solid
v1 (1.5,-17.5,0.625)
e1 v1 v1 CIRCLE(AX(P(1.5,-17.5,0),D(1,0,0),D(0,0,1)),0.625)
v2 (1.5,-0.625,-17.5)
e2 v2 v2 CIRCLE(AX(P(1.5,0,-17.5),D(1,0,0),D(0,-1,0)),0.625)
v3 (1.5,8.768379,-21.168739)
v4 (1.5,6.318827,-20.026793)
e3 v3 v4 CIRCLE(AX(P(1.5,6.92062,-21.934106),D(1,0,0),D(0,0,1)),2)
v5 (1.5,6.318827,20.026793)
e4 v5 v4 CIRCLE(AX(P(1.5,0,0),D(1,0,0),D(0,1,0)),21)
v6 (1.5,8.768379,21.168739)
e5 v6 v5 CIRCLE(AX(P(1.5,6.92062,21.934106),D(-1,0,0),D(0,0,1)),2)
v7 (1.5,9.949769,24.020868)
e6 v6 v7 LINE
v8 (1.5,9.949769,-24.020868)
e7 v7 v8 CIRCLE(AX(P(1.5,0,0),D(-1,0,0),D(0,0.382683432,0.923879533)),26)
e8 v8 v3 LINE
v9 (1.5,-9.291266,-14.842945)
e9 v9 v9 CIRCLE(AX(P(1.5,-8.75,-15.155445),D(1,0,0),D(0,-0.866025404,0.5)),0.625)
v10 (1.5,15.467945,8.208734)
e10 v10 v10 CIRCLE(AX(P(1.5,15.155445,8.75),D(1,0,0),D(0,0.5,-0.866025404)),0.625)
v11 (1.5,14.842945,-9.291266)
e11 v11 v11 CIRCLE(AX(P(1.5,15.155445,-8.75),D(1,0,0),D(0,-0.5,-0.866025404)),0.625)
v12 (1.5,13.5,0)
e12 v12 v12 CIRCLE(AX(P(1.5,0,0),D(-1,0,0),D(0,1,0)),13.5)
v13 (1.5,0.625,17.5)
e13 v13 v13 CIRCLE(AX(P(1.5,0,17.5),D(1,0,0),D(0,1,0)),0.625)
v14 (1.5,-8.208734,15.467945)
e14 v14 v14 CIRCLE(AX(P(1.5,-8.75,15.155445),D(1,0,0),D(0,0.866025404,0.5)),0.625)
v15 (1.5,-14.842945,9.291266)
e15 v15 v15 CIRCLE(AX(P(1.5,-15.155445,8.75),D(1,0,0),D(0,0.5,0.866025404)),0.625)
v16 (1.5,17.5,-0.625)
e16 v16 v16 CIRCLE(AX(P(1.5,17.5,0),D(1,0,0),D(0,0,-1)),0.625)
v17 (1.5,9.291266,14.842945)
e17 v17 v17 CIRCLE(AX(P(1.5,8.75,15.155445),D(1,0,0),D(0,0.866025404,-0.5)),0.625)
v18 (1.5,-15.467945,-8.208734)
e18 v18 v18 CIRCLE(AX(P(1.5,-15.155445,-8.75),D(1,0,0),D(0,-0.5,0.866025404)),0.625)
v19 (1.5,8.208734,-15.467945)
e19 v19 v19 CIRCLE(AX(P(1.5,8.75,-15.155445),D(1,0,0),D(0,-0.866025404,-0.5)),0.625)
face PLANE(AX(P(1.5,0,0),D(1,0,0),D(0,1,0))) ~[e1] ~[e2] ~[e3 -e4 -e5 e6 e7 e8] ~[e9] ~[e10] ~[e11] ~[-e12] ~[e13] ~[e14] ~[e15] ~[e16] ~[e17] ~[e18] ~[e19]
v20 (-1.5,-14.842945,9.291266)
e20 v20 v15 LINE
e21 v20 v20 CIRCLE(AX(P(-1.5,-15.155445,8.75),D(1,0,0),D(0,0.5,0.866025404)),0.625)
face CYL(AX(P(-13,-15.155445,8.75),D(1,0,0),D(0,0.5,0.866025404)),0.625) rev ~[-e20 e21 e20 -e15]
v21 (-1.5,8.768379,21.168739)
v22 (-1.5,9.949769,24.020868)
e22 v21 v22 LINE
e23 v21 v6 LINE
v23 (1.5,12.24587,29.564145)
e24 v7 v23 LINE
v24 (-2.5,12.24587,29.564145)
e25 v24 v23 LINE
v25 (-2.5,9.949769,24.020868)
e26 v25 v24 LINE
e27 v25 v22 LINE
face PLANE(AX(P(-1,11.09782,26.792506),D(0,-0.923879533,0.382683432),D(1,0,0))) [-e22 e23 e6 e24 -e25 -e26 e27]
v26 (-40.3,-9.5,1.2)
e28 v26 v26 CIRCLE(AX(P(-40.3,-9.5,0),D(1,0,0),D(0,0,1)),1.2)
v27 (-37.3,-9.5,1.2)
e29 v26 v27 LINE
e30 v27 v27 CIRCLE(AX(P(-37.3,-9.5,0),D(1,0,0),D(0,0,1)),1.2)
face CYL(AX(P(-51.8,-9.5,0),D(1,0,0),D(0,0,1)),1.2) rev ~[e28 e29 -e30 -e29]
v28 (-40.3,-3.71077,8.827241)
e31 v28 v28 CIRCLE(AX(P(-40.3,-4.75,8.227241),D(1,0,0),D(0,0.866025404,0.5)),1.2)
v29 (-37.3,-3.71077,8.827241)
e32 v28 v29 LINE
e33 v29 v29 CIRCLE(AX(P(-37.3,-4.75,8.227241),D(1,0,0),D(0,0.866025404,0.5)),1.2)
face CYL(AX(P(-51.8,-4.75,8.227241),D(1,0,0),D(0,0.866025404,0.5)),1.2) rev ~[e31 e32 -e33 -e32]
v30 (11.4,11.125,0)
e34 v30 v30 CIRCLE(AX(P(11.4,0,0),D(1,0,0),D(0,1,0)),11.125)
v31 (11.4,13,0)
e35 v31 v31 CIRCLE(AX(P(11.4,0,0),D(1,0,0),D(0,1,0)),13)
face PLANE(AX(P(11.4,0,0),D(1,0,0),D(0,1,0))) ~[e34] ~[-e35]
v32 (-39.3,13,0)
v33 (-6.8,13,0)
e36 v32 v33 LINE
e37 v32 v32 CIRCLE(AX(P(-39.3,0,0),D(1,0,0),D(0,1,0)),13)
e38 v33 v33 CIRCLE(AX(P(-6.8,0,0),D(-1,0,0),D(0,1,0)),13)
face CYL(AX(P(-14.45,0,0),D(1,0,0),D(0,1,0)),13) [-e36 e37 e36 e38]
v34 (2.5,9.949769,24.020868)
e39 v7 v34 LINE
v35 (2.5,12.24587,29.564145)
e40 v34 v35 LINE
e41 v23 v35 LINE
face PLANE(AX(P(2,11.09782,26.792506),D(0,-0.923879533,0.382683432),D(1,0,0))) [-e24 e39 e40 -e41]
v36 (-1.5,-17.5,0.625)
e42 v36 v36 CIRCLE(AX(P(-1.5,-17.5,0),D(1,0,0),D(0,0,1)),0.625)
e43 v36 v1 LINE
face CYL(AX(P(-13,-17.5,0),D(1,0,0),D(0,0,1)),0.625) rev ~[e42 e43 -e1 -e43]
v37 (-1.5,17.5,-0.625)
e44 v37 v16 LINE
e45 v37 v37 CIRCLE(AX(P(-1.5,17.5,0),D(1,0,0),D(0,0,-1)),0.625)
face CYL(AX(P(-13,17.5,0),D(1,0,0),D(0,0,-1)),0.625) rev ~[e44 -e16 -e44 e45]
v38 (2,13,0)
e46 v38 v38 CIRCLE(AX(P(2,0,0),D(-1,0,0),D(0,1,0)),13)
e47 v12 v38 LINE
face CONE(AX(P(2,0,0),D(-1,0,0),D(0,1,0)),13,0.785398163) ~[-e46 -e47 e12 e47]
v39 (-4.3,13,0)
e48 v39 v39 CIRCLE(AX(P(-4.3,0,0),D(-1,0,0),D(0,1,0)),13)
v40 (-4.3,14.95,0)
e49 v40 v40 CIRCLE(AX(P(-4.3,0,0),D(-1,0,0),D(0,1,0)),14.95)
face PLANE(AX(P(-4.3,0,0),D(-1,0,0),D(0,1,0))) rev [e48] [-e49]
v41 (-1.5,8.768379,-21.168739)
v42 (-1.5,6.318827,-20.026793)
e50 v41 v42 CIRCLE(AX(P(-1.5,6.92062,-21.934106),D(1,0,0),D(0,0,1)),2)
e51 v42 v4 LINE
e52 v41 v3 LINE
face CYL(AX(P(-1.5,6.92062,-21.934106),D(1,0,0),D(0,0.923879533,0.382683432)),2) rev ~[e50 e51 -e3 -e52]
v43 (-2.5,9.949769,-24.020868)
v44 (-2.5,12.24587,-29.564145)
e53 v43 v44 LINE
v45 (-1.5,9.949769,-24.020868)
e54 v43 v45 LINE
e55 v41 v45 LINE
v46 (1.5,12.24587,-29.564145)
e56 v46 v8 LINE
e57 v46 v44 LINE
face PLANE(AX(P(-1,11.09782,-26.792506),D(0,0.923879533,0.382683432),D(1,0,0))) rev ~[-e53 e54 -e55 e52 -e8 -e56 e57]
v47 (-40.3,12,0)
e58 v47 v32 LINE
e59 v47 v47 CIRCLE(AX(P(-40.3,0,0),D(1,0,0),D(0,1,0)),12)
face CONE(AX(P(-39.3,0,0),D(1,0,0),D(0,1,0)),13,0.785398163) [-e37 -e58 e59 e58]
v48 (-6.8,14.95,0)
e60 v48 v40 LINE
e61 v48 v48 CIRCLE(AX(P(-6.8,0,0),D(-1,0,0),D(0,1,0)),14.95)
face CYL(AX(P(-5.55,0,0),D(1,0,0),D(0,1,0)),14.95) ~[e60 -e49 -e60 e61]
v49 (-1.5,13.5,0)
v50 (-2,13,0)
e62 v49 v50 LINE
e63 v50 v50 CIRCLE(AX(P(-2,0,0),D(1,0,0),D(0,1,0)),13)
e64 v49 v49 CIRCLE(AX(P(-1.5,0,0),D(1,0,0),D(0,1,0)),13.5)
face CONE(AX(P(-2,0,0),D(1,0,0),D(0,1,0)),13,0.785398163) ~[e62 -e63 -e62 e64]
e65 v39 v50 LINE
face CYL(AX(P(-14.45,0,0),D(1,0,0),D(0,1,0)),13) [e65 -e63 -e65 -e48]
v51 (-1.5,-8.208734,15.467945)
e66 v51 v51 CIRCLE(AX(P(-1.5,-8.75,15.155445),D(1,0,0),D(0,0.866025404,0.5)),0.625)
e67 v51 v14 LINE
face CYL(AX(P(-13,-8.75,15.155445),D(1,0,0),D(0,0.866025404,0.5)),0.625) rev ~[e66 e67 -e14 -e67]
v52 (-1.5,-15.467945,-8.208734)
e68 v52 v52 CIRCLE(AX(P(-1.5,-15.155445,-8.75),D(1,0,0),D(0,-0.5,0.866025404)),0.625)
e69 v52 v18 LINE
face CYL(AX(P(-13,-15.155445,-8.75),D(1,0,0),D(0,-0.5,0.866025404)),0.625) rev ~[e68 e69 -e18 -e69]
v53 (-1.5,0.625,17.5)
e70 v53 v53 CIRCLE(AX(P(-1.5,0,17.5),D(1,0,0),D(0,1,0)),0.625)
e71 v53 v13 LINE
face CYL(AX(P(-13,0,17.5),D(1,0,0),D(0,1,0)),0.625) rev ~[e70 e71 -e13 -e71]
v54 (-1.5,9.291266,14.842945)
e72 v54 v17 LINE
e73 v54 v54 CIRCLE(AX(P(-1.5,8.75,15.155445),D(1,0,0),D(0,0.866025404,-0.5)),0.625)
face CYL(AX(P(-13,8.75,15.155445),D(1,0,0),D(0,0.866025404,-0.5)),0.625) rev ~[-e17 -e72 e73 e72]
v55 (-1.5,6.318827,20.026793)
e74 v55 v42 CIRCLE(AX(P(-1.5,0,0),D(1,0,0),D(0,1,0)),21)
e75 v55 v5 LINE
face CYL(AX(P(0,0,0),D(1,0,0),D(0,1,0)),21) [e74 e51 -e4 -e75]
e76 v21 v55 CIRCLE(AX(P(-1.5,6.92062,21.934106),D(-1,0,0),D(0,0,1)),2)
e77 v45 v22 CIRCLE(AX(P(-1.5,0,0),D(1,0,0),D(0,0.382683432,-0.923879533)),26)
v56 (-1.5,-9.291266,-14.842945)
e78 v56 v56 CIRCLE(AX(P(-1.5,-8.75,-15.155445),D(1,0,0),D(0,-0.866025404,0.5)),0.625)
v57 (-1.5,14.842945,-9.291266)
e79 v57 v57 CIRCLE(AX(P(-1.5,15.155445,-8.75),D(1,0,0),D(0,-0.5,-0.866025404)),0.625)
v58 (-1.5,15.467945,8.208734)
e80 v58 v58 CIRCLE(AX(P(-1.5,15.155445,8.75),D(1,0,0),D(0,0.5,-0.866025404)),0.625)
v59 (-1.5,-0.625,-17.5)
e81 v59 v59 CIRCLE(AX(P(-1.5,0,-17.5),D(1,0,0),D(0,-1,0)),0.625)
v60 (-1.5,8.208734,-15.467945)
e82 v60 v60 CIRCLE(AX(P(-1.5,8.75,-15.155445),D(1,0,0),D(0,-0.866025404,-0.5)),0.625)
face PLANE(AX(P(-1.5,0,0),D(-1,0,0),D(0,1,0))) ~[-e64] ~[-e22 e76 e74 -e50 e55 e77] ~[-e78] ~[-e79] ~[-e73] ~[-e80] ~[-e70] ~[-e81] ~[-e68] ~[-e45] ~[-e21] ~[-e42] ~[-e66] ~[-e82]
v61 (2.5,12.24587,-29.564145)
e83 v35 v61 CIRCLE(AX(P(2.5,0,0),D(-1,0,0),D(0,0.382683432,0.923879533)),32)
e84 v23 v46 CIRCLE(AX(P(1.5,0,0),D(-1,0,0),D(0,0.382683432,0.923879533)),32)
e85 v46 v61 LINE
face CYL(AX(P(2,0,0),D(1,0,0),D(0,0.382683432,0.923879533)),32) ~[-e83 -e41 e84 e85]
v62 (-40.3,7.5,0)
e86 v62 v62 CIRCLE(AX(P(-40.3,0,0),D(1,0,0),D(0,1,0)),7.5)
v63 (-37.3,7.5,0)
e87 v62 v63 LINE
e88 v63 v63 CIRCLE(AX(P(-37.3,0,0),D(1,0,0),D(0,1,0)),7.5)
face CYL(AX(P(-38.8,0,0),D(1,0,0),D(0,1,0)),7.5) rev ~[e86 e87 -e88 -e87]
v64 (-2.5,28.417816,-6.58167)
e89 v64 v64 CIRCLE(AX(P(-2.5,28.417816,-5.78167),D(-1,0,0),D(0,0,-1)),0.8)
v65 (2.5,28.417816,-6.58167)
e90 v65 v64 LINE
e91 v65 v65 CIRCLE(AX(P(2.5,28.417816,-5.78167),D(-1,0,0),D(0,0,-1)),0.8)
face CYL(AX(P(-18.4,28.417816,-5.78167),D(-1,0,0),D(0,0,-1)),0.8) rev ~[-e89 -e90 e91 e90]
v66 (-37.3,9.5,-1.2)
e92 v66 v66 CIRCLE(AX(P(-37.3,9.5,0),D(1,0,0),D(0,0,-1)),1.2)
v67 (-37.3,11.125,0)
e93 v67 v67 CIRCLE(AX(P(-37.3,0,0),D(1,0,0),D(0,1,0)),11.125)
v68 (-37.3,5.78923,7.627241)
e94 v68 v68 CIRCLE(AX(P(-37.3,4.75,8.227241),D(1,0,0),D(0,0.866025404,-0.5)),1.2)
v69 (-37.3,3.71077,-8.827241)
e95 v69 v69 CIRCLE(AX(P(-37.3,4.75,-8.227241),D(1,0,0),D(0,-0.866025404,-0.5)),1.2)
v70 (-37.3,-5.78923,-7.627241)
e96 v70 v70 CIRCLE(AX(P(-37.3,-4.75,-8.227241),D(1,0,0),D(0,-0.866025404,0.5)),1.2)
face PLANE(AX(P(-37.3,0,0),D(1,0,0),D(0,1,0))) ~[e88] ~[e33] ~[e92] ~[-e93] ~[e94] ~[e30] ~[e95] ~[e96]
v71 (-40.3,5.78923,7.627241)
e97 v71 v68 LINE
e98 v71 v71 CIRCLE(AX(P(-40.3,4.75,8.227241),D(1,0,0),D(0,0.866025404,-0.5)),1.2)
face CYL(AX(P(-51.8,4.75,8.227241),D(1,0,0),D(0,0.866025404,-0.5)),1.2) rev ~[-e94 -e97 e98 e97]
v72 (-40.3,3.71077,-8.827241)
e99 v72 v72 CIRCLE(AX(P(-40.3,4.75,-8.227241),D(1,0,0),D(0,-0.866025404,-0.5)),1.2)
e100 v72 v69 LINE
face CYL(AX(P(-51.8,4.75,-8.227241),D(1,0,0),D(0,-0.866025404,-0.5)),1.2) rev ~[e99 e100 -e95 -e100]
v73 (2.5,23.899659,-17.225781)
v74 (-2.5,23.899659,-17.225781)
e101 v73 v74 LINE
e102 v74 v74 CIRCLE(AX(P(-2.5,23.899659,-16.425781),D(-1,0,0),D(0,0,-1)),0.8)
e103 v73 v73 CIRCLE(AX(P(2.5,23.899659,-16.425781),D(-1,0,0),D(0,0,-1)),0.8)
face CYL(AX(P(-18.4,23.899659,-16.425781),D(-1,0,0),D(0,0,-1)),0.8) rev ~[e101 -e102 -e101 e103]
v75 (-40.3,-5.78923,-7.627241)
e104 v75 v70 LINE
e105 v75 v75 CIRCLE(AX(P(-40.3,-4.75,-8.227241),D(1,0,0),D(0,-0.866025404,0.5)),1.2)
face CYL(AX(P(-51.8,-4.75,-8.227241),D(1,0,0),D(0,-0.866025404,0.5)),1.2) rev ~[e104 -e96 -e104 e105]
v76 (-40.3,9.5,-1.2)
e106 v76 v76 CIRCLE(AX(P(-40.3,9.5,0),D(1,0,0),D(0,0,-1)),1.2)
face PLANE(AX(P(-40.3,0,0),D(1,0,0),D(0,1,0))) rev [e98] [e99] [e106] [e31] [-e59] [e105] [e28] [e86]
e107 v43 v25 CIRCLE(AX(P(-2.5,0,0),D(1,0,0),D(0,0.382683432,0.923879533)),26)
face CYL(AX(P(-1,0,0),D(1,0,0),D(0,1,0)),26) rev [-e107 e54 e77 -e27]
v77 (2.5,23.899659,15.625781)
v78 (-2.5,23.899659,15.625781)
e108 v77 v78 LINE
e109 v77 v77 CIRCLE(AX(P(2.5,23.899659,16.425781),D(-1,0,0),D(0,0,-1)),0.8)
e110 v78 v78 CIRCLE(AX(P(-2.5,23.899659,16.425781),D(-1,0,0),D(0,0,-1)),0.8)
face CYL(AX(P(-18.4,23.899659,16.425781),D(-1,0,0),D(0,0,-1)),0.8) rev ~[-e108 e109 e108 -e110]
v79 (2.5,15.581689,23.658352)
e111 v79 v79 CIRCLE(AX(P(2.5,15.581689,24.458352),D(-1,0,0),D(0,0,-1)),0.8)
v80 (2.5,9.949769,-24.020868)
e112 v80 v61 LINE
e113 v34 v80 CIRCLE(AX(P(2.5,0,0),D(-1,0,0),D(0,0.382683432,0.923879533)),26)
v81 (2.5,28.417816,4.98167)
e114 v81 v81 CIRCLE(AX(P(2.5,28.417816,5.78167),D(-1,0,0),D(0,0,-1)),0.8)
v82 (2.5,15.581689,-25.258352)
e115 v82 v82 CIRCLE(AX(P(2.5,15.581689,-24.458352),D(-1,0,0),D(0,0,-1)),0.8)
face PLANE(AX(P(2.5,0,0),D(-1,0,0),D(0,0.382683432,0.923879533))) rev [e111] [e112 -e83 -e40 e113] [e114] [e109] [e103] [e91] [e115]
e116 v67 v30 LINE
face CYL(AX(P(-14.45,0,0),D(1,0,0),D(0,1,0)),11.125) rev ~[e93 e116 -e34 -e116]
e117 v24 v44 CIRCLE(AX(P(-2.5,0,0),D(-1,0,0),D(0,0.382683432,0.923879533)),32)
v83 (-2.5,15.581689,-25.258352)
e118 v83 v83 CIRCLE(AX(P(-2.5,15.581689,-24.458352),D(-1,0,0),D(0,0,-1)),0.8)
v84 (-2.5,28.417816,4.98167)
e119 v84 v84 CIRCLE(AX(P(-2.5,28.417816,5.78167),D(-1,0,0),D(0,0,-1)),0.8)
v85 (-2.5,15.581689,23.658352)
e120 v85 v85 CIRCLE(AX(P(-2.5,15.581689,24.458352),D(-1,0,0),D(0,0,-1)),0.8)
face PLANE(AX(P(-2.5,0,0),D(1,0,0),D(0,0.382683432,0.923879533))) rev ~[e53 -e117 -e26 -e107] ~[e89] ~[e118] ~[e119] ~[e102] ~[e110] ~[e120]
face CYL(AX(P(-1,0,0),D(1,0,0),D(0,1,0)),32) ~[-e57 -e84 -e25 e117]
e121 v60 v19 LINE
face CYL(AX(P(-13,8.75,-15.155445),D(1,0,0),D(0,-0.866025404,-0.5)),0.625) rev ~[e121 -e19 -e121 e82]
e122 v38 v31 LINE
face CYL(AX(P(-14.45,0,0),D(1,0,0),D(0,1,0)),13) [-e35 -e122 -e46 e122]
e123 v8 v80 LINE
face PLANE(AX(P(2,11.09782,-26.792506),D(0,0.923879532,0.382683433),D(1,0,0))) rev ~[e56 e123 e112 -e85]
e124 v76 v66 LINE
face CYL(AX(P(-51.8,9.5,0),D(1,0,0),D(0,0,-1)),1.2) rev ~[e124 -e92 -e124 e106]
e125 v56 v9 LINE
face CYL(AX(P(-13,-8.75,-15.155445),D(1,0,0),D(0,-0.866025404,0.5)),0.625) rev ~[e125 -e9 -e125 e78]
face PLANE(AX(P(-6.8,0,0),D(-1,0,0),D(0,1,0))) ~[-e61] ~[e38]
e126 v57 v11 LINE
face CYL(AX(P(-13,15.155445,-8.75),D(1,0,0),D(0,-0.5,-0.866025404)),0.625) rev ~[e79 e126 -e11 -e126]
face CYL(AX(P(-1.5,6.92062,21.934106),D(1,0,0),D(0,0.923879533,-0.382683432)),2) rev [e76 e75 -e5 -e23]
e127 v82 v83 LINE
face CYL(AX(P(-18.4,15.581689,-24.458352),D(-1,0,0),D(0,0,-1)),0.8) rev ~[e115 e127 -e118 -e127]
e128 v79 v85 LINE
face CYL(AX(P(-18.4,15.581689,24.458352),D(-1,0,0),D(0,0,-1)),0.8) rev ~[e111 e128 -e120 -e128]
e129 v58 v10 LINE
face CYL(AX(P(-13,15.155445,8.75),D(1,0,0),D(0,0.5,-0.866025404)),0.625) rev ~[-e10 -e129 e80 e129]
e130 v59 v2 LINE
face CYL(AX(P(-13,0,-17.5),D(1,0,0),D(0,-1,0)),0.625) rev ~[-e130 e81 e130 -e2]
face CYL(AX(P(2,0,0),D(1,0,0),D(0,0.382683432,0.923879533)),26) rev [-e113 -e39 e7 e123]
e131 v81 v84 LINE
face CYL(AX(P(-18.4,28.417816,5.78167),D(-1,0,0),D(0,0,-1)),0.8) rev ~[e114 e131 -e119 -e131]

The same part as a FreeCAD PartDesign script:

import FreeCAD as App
import Part
import Sketcher
from FreeCAD import Vector
Q = App.Units.Quantity


def edges_at(feature, points):
    """Names of the edges that pass closest to the given points."""
    edges = feature.Shape.Edges
    near = lambda p: min(range(len(edges)), key=lambda i: edges[i].distToShape(Part.Vertex(*p))[0])
    return sorted({f"Edge{near(p) + 1}" for p in points})

doc = App.newDocument("Part")
params = doc.addObject("Spreadsheet::Sheet", "Params")
for row, (alias, value) in enumerate([
    ("sketch1_width", "51.7 mm"),
    ("revolution_angle", "360 deg"),
    ("sketch2_width", "3 mm"),
    ("revolution2_angle", "360 deg"),
    ("chamfer_size", "1 mm"),
    ("sketch3_diameter", "2.4 mm"),
    ("hole_diameter", "2.4 mm"),
    ("hole_depth", "11.5 mm"),
    ("sketch4_width", "3 mm"),
    ("sketch4_height", "19 mm"),
    ("revolution3_angle", "67.5 deg"),
    ("sketch5_width", "3 mm"),
    ("sketch5_height", "19 mm"),
    ("revolution4_angle", "67.5 deg"),
    ("sketch6_width", "3 mm"),
    ("sketch6_height", "8 mm"),
    ("revolution5_angle", "360 deg"),
    ("chamfer2_size", "0.5 mm"),
    ("sketch7_width", "5 mm"),
    ("sketch7_height", "6 mm"),
    ("revolution6_angle", "67.5 deg"),
    ("sketch8_width", "5 mm"),
    ("sketch8_height", "6 mm"),
    ("revolution7_angle", "67.5 deg"),
    ("chamfer3_size", "1 mm"),
    ("sketch9_diameter", "1.25 mm"),
    ("hole2_diameter", "1.25 mm"),
    ("hole2_depth", "11.5 mm"),
    ("fillet_radius", "2 mm"),
    ("sketch10_width", "2.5 mm"),
    ("sketch10_height", "1.95 mm"),
    ("revolution8_angle", "360 deg"),
    ("sketch11_width", "1 mm"),
    ("sketch11_height", "5 mm"),
    ("sketch11_height2", "6 mm"),
    ("groove_angle", "360 deg"),
    ("sketch12_width", "1 mm"),
    ("sketch12_height", "6 mm"),
    ("revolution9_angle", "135 deg"),
    ("sketch13_width", "41.8 mm"),
    ("sketch13_height", "0.8 mm"),
    ("groove2_angle", "360 deg"),
    ("linearpattern_pitch", "11.56334 mm"),
    ("linearpattern2_pitch", "11.56334 mm"),
    ("linearpattern3_pitch", "22.662405 mm"),
    ("linearpattern4_pitch", "32.851562 mm"),
    ("linearpattern5_pitch", "41.721708 mm"),
], start=1):
    params.set(f"A{row}", alias)
    params.set(f"B{row}", "=" + value)
    params.setAlias(f"B{row}", alias)

body = doc.addObject("PartDesign::Body", "Body")

# Sketch on XY plane
sketch1 = body.newObject("Sketcher::SketchObject", "Sketch")
sketch1.AttachmentSupport = (doc.getObject("XY_Plane"), [""])
sketch1.MapMode = "FlatFace"
sketch1.addGeometry(Part.LineSegment(Vector(-40.3, 13, 0), Vector(-40.3, 11.1, 0)), False)
sketch1.addGeometry(Part.LineSegment(Vector(-40.3, 11.1, 0), Vector(11.4, 11.1, 0)), False)
sketch1.addGeometry(Part.LineSegment(Vector(11.4, 11.1, 0), Vector(11.4, 13, 0)), False)
sketch1.addGeometry(Part.LineSegment(Vector(11.4, 13, 0), Vector(-40.3, 13, 0)), False)
sketch1.addConstraint(Sketcher.Constraint("Coincident", 0, 2, 1, 1))
sketch1.addConstraint(Sketcher.Constraint("Coincident", 1, 2, 2, 1))
sketch1.addConstraint(Sketcher.Constraint("Coincident", 2, 2, 3, 1))
sketch1.addConstraint(Sketcher.Constraint("Coincident", 3, 2, 0, 1))
sketch1.addConstraint(Sketcher.Constraint("Vertical", 0))
sketch1.addConstraint(Sketcher.Constraint("Horizontal", 1))
sketch1.addConstraint(Sketcher.Constraint("Vertical", 2))
sketch1.addConstraint(Sketcher.Constraint("Horizontal", 3))
sketch1.addConstraint(Sketcher.Constraint("DistanceX", 1, 1, 1, 2, Q("51.7 mm")))
sketch1.addConstraint(Sketcher.Constraint("DistanceY", -1, 1, 2, 2, Q("13 mm")))
sketch1.addConstraint(Sketcher.Constraint("DistanceX", 0, 2, -1, 1, Q("40.3 mm")))
sketch1.addConstraint(Sketcher.Constraint("DistanceY", 0, 2, 0, 1, Q("1.875 mm")))
sketch1.setExpression("Constraints[8]", "Params.sketch1_width")
revolution = body.newObject("PartDesign::Revolution", "Revolution")
revolution.Profile = sketch1
revolution.ReferenceAxis = (sketch1, ["H_Axis"])
revolution.setExpression("Angle", "Params.revolution_angle")

# Sketch on XY plane
sketch2 = body.newObject("Sketcher::SketchObject", "Sketch001")
sketch2.AttachmentSupport = (doc.getObject("XY_Plane"), [""])
sketch2.MapMode = "FlatFace"
sketch2.addGeometry(Part.LineSegment(Vector(-40.3, 11.1, 0), Vector(-40.3, 7.5, 0)), False)
sketch2.addGeometry(Part.LineSegment(Vector(-40.3, 7.5, 0), Vector(-37.3, 7.5, 0)), False)
sketch2.addGeometry(Part.LineSegment(Vector(-37.3, 7.5, 0), Vector(-37.3, 11.1, 0)), False)
sketch2.addGeometry(Part.LineSegment(Vector(-37.3, 11.1, 0), Vector(-40.3, 11.1, 0)), False)
sketch2.addConstraint(Sketcher.Constraint("Coincident", 0, 2, 1, 1))
sketch2.addConstraint(Sketcher.Constraint("Coincident", 1, 2, 2, 1))
sketch2.addConstraint(Sketcher.Constraint("Coincident", 2, 2, 3, 1))
sketch2.addConstraint(Sketcher.Constraint("Coincident", 3, 2, 0, 1))
sketch2.addConstraint(Sketcher.Constraint("Vertical", 0))
sketch2.addConstraint(Sketcher.Constraint("Horizontal", 1))
sketch2.addConstraint(Sketcher.Constraint("Vertical", 2))
sketch2.addConstraint(Sketcher.Constraint("Horizontal", 3))
sketch2.addConstraint(Sketcher.Constraint("DistanceX", 1, 1, 1, 2, Q("3 mm")))
sketch2.addConstraint(Sketcher.Constraint("DistanceX", 0, 2, -1, 1, Q("40.3 mm")))
sketch2.addConstraint(Sketcher.Constraint("DistanceY", -1, 1, 0, 2, Q("7.5 mm")))
sketch2.addConstraint(Sketcher.Constraint("DistanceY", 0, 2, 0, 1, Q("3.625 mm")))
sketch2.setExpression("Constraints[8]", "Params.sketch2_width")
revolution2 = body.newObject("PartDesign::Revolution", "Revolution001")
revolution2.Profile = sketch2
revolution2.ReferenceAxis = (sketch2, ["H_Axis"])
revolution2.setExpression("Angle", "Params.revolution2_angle")
doc.recompute()

chamfer = body.newObject("PartDesign::Chamfer", "Chamfer")
chamfer.Base = (revolution2, edges_at(revolution2, [(-40.3, -13, 0)]))
chamfer.setExpression("Size", "Params.chamfer_size")

# Sketch on YZ plane
sketch3 = body.newObject("Sketcher::SketchObject", "Sketch002")
sketch3.AttachmentSupport = (doc.getObject("YZ_Plane"), [""])
sketch3.MapMode = "FlatFace"
sketch3.AttachmentOffset = App.Placement(Vector(0, 0, -40.3), App.Rotation())
sketch3.addGeometry(Part.Circle(Vector(9.5, 0, 0), Vector(0, 0, 1), 1.2), False)
sketch3.addConstraint(Sketcher.Constraint("PointOnObject", 0, 3, -1))
sketch3.addConstraint(Sketcher.Constraint("Diameter", 0, Q("2.4 mm")))
sketch3.addConstraint(Sketcher.Constraint("DistanceX", -1, 1, 0, 3, Q("9.5 mm")))
sketch3.setExpression("Constraints[1]", "Params.sketch3_diameter")
doc.recompute()
hole = body.newObject("PartDesign::Hole", "Hole")
hole.Profile = sketch3
hole.ThreadType = "None"
hole.setExpression("Diameter", "Params.hole_diameter")
hole.DepthType = "Dimension"
hole.setExpression("Depth", "Params.hole_depth")
hole.DrillPoint = "Flat"
hole.Reversed = True
doc.recompute()

polarpattern = body.newObject("PartDesign::PolarPattern", "PolarPattern")
polarpattern.Originals = [hole]
polarpattern.Axis = (doc.getObject("X_Axis"), [""])
polarpattern.Angle = 360
polarpattern.Occurrences = 6
body.Tip = polarpattern

# Sketch on XY plane
sketch4 = body.newObject("Sketcher::SketchObject", "Sketch003")
sketch4.AttachmentSupport = (doc.getObject("XY_Plane"), [""])
sketch4.MapMode = "FlatFace"
sketch4.addGeometry(Part.LineSegment(Vector(-1.5, 32, 0), Vector(-1.5, 13, 0)), False)
sketch4.addGeometry(Part.LineSegment(Vector(-1.5, 13, 0), Vector(1.5, 13, 0)), False)
sketch4.addGeometry(Part.LineSegment(Vector(1.5, 13, 0), Vector(1.5, 32, 0)), False)
sketch4.addGeometry(Part.LineSegment(Vector(1.5, 32, 0), Vector(-1.5, 32, 0)), False)
sketch4.addConstraint(Sketcher.Constraint("Coincident", 0, 2, 1, 1))
sketch4.addConstraint(Sketcher.Constraint("Coincident", 1, 2, 2, 1))
sketch4.addConstraint(Sketcher.Constraint("Coincident", 2, 2, 3, 1))
sketch4.addConstraint(Sketcher.Constraint("Coincident", 3, 2, 0, 1))
sketch4.addConstraint(Sketcher.Constraint("Vertical", 0))
sketch4.addConstraint(Sketcher.Constraint("Horizontal", 1))
sketch4.addConstraint(Sketcher.Constraint("Vertical", 2))
sketch4.addConstraint(Sketcher.Constraint("Horizontal", 3))
sketch4.addConstraint(Sketcher.Constraint("DistanceX", 1, 1, 1, 2, Q("3 mm")))
sketch4.addConstraint(Sketcher.Constraint("DistanceY", 0, 2, 0, 1, Q("19 mm")))
sketch4.addConstraint(Sketcher.Constraint("DistanceY", -1, 1, 0, 2, Q("13 mm")))
sketch4.addConstraint(Sketcher.Constraint("DistanceX", 0, 2, -1, 1, Q("1.5 mm")))
sketch4.setExpression("Constraints[8]", "Params.sketch4_width")
sketch4.setExpression("Constraints[9]", "Params.sketch4_height")
revolution3 = body.newObject("PartDesign::Revolution", "Revolution002")
revolution3.Profile = sketch4
revolution3.ReferenceAxis = (sketch4, ["H_Axis"])
revolution3.setExpression("Angle", "Params.revolution3_angle")

# Sketch on XY plane
sketch5 = body.newObject("Sketcher::SketchObject", "Sketch004")
sketch5.AttachmentSupport = (doc.getObject("XY_Plane"), [""])
sketch5.MapMode = "FlatFace"
sketch5.addGeometry(Part.LineSegment(Vector(-1.5, 32, 0), Vector(-1.5, 13, 0)), False)
sketch5.addGeometry(Part.LineSegment(Vector(-1.5, 13, 0), Vector(1.5, 13, 0)), False)
sketch5.addGeometry(Part.LineSegment(Vector(1.5, 13, 0), Vector(1.5, 32, 0)), False)
sketch5.addGeometry(Part.LineSegment(Vector(1.5, 32, 0), Vector(-1.5, 32, 0)), False)
sketch5.addConstraint(Sketcher.Constraint("Coincident", 0, 2, 1, 1))
sketch5.addConstraint(Sketcher.Constraint("Coincident", 1, 2, 2, 1))
sketch5.addConstraint(Sketcher.Constraint("Coincident", 2, 2, 3, 1))
sketch5.addConstraint(Sketcher.Constraint("Coincident", 3, 2, 0, 1))
sketch5.addConstraint(Sketcher.Constraint("Vertical", 0))
sketch5.addConstraint(Sketcher.Constraint("Horizontal", 1))
sketch5.addConstraint(Sketcher.Constraint("Vertical", 2))
sketch5.addConstraint(Sketcher.Constraint("Horizontal", 3))
sketch5.addConstraint(Sketcher.Constraint("DistanceX", 1, 1, 1, 2, Q("3 mm")))
sketch5.addConstraint(Sketcher.Constraint("DistanceY", 0, 2, 0, 1, Q("19 mm")))
sketch5.addConstraint(Sketcher.Constraint("DistanceY", -1, 1, 0, 2, Q("13 mm")))
sketch5.addConstraint(Sketcher.Constraint("DistanceX", 0, 2, -1, 1, Q("1.5 mm")))
sketch5.setExpression("Constraints[8]", "Params.sketch5_width")
sketch5.setExpression("Constraints[9]", "Params.sketch5_height")
revolution4 = body.newObject("PartDesign::Revolution", "Revolution003")
revolution4.Profile = sketch5
revolution4.ReferenceAxis = (sketch5, ["H_Axis"])
revolution4.setExpression("Angle", "Params.revolution4_angle")
revolution4.Reversed = True

# Sketch on XY plane
sketch6 = body.newObject("Sketcher::SketchObject", "Sketch005")
sketch6.AttachmentSupport = (doc.getObject("XY_Plane"), [""])
sketch6.MapMode = "FlatFace"
sketch6.addGeometry(Part.LineSegment(Vector(-1.5, 21, 0), Vector(-1.5, 13, 0)), False)
sketch6.addGeometry(Part.LineSegment(Vector(-1.5, 13, 0), Vector(1.5, 13, 0)), False)
sketch6.addGeometry(Part.LineSegment(Vector(1.5, 13, 0), Vector(1.5, 21, 0)), False)
sketch6.addGeometry(Part.LineSegment(Vector(1.5, 21, 0), Vector(-1.5, 21, 0)), False)
sketch6.addConstraint(Sketcher.Constraint("Coincident", 0, 2, 1, 1))
sketch6.addConstraint(Sketcher.Constraint("Coincident", 1, 2, 2, 1))
sketch6.addConstraint(Sketcher.Constraint("Coincident", 2, 2, 3, 1))
sketch6.addConstraint(Sketcher.Constraint("Coincident", 3, 2, 0, 1))
sketch6.addConstraint(Sketcher.Constraint("Vertical", 0))
sketch6.addConstraint(Sketcher.Constraint("Horizontal", 1))
sketch6.addConstraint(Sketcher.Constraint("Vertical", 2))
sketch6.addConstraint(Sketcher.Constraint("Horizontal", 3))
sketch6.addConstraint(Sketcher.Constraint("DistanceX", 1, 1, 1, 2, Q("3 mm")))
sketch6.addConstraint(Sketcher.Constraint("DistanceY", 0, 2, 0, 1, Q("8 mm")))
sketch6.addConstraint(Sketcher.Constraint("DistanceY", -1, 1, 0, 2, Q("13 mm")))
sketch6.addConstraint(Sketcher.Constraint("DistanceX", 0, 2, -1, 1, Q("1.5 mm")))
sketch6.setExpression("Constraints[8]", "Params.sketch6_width")
sketch6.setExpression("Constraints[9]", "Params.sketch6_height")
revolution5 = body.newObject("PartDesign::Revolution", "Revolution004")
revolution5.Profile = sketch6
revolution5.ReferenceAxis = (sketch6, ["H_Axis"])
revolution5.setExpression("Angle", "Params.revolution5_angle")
doc.recompute()

chamfer2 = body.newObject("PartDesign::Chamfer", "Chamfer001")
chamfer2.Base = (revolution5, edges_at(revolution5, [(-1.5, -13, 0), (1.5, -13, 0)]))
chamfer2.setExpression("Size", "Params.chamfer2_size")

# Sketch on XY plane
sketch7 = body.newObject("Sketcher::SketchObject", "Sketch006")
sketch7.AttachmentSupport = (doc.getObject("XY_Plane"), [""])
sketch7.MapMode = "FlatFace"
sketch7.addGeometry(Part.LineSegment(Vector(-4, 32, 0), Vector(-4, 26, 0)), False)
sketch7.addGeometry(Part.LineSegment(Vector(-4, 26, 0), Vector(2, 26, 0)), False)
sketch7.addGeometry(Part.LineSegment(Vector(2, 26, 0), Vector(2, 32, 0)), False)
sketch7.addGeometry(Part.LineSegment(Vector(2, 32, 0), Vector(-4, 32, 0)), False)
sketch7.addConstraint(Sketcher.Constraint("Coincident", 0, 2, 1, 1))
sketch7.addConstraint(Sketcher.Constraint("Coincident", 1, 2, 2, 1))
sketch7.addConstraint(Sketcher.Constraint("Coincident", 2, 2, 3, 1))
sketch7.addConstraint(Sketcher.Constraint("Coincident", 3, 2, 0, 1))
sketch7.addConstraint(Sketcher.Constraint("Vertical", 0))
sketch7.addConstraint(Sketcher.Constraint("Horizontal", 1))
sketch7.addConstraint(Sketcher.Constraint("Vertical", 2))
sketch7.addConstraint(Sketcher.Constraint("Horizontal", 3))
sketch7.addConstraint(Sketcher.Constraint("DistanceX", 1, 1, 1, 2, Q("5 mm")))
sketch7.addConstraint(Sketcher.Constraint("DistanceY", 0, 2, 0, 1, Q("6 mm")))
sketch7.addConstraint(Sketcher.Constraint("DistanceY", -1, 1, 0, 2, Q("26 mm")))
sketch7.addConstraint(Sketcher.Constraint("DistanceX", 0, 2, -1, 1, Q("3.5 mm")))
sketch7.setExpression("Constraints[8]", "Params.sketch7_width")
sketch7.setExpression("Constraints[9]", "Params.sketch7_height")
revolution6 = body.newObject("PartDesign::Revolution", "Revolution005")
revolution6.Profile = sketch7
revolution6.ReferenceAxis = (sketch7, ["H_Axis"])
revolution6.setExpression("Angle", "Params.revolution6_angle")

# Sketch on XY plane
sketch8 = body.newObject("Sketcher::SketchObject", "Sketch007")
sketch8.AttachmentSupport = (doc.getObject("XY_Plane"), [""])
sketch8.MapMode = "FlatFace"
sketch8.addGeometry(Part.LineSegment(Vector(-4, 32, 0), Vector(-4, 26, 0)), False)
sketch8.addGeometry(Part.LineSegment(Vector(-4, 26, 0), Vector(2, 26, 0)), False)
sketch8.addGeometry(Part.LineSegment(Vector(2, 26, 0), Vector(2, 32, 0)), False)
sketch8.addGeometry(Part.LineSegment(Vector(2, 32, 0), Vector(-4, 32, 0)), False)
sketch8.addConstraint(Sketcher.Constraint("Coincident", 0, 2, 1, 1))
sketch8.addConstraint(Sketcher.Constraint("Coincident", 1, 2, 2, 1))
sketch8.addConstraint(Sketcher.Constraint("Coincident", 2, 2, 3, 1))
sketch8.addConstraint(Sketcher.Constraint("Coincident", 3, 2, 0, 1))
sketch8.addConstraint(Sketcher.Constraint("Vertical", 0))
sketch8.addConstraint(Sketcher.Constraint("Horizontal", 1))
sketch8.addConstraint(Sketcher.Constraint("Vertical", 2))
sketch8.addConstraint(Sketcher.Constraint("Horizontal", 3))
sketch8.addConstraint(Sketcher.Constraint("DistanceX", 1, 1, 1, 2, Q("5 mm")))
sketch8.addConstraint(Sketcher.Constraint("DistanceY", 0, 2, 0, 1, Q("6 mm")))
sketch8.addConstraint(Sketcher.Constraint("DistanceY", -1, 1, 0, 2, Q("26 mm")))
sketch8.addConstraint(Sketcher.Constraint("DistanceX", 0, 2, -1, 1, Q("3.5 mm")))
sketch8.setExpression("Constraints[8]", "Params.sketch8_width")
sketch8.setExpression("Constraints[9]", "Params.sketch8_height")
revolution7 = body.newObject("PartDesign::Revolution", "Revolution006")
revolution7.Profile = sketch8
revolution7.ReferenceAxis = (sketch8, ["H_Axis"])
revolution7.setExpression("Angle", "Params.revolution7_angle")
revolution7.Reversed = True
doc.recompute()

chamfer3 = body.newObject("PartDesign::Chamfer", "Chamfer002")
chamfer3.Base = (revolution7, edges_at(revolution7, [(-3.5, 32, 0)]))
chamfer3.setExpression("Size", "Params.chamfer3_size")

# Sketch on YZ plane
sketch9 = body.newObject("Sketcher::SketchObject", "Sketch008")
sketch9.AttachmentSupport = (doc.getObject("YZ_Plane"), [""])
sketch9.MapMode = "FlatFace"
sketch9.AttachmentOffset = App.Placement(Vector(0, 0, -1.5), App.Rotation())
sketch9.addGeometry(Part.Circle(Vector(17.5, 0, 0), Vector(0, 0, 1), 0.6), False)
sketch9.addConstraint(Sketcher.Constraint("PointOnObject", 0, 3, -1))
sketch9.addConstraint(Sketcher.Constraint("Diameter", 0, Q("1.25 mm")))
sketch9.addConstraint(Sketcher.Constraint("DistanceX", -1, 1, 0, 3, Q("17.5 mm")))
sketch9.setExpression("Constraints[1]", "Params.sketch9_diameter")
doc.recompute()
hole2 = body.newObject("PartDesign::Hole", "Hole001")
hole2.Profile = sketch9
hole2.ThreadType = "None"
hole2.setExpression("Diameter", "Params.hole2_diameter")
hole2.DepthType = "Dimension"
hole2.setExpression("Depth", "Params.hole2_depth")
hole2.DrillPoint = "Flat"
hole2.Reversed = True
doc.recompute()

polarpattern2 = body.newObject("PartDesign::PolarPattern", "PolarPattern001")
polarpattern2.Originals = [hole2]
polarpattern2.Axis = (doc.getObject("X_Axis"), [""])
polarpattern2.Angle = 360
polarpattern2.Occurrences = 12
body.Tip = polarpattern2
doc.recompute()

fillet = body.newObject("PartDesign::Fillet", "Fillet")
fillet.Base = (polarpattern2, edges_at(polarpattern2, [(0, 8.036, -19.401), (0, 8.036, 19.401)]))
fillet.setExpression("Radius", "Params.fillet_radius")

# Sketch on XY plane
sketch10 = body.newObject("Sketcher::SketchObject", "Sketch009")
sketch10.AttachmentSupport = (doc.getObject("XY_Plane"), [""])
sketch10.MapMode = "FlatFace"
sketch10.addGeometry(Part.LineSegment(Vector(-6.8, 14.9, 0), Vector(-6.8, 13, 0)), False)
sketch10.addGeometry(Part.LineSegment(Vector(-6.8, 13, 0), Vector(-4.3, 13, 0)), False)
sketch10.addGeometry(Part.LineSegment(Vector(-4.3, 13, 0), Vector(-4.3, 14.9, 0)), False)
sketch10.addGeometry(Part.LineSegment(Vector(-4.3, 14.9, 0), Vector(-6.8, 14.9, 0)), False)
sketch10.addConstraint(Sketcher.Constraint("Coincident", 0, 2, 1, 1))
sketch10.addConstraint(Sketcher.Constraint("Coincident", 1, 2, 2, 1))
sketch10.addConstraint(Sketcher.Constraint("Coincident", 2, 2, 3, 1))
sketch10.addConstraint(Sketcher.Constraint("Coincident", 3, 2, 0, 1))
sketch10.addConstraint(Sketcher.Constraint("Vertical", 0))
sketch10.addConstraint(Sketcher.Constraint("Horizontal", 1))
sketch10.addConstraint(Sketcher.Constraint("Vertical", 2))
sketch10.addConstraint(Sketcher.Constraint("Horizontal", 3))
sketch10.addConstraint(Sketcher.Constraint("DistanceX", 1, 1, 1, 2, Q("2.5 mm")))
sketch10.addConstraint(Sketcher.Constraint("DistanceY", -1, 1, 0, 2, Q("13 mm")))
sketch10.addConstraint(Sketcher.Constraint("DistanceY", 0, 2, 0, 1, Q("1.95 mm")))
sketch10.addConstraint(Sketcher.Constraint("DistanceX", 0, 2, -1, 1, Q("6.8 mm")))
sketch10.setExpression("Constraints[8]", "Params.sketch10_width")
sketch10.setExpression("Constraints[10]", "Params.sketch10_height")
revolution8 = body.newObject("PartDesign::Revolution", "Revolution007")
revolution8.Profile = sketch10
revolution8.ReferenceAxis = (sketch10, ["H_Axis"])
revolution8.setExpression("Angle", "Params.revolution8_angle")

# Sketch on an angled plane
sketch11 = body.newObject("Sketcher::SketchObject", "Sketch010")
sketch11.Placement = App.Placement(Vector(0, 0, 0), App.Rotation(Vector(1, 0, 0), Vector(0, 0.382683432, 0.923879533), Vector(0, -0.923879533, 0.382683432), "ZXY"))
sketch11.addGeometry(Part.LineSegment(Vector(-2.5, 32, 0), Vector(-3.5, 31, 0)), False)
sketch11.addGeometry(Part.LineSegment(Vector(-3.5, 31, 0), Vector(-3.5, 26, 0)), False)
sketch11.addGeometry(Part.LineSegment(Vector(-3.5, 26, 0), Vector(-2.5, 26, 0)), False)
sketch11.addGeometry(Part.LineSegment(Vector(-2.5, 26, 0), Vector(-2.5, 32, 0)), False)
sketch11.addConstraint(Sketcher.Constraint("Coincident", 0, 2, 1, 1))
sketch11.addConstraint(Sketcher.Constraint("Coincident", 1, 2, 2, 1))
sketch11.addConstraint(Sketcher.Constraint("Coincident", 2, 2, 3, 1))
sketch11.addConstraint(Sketcher.Constraint("Coincident", 3, 2, 0, 1))
sketch11.addConstraint(Sketcher.Constraint("Vertical", 1))
sketch11.addConstraint(Sketcher.Constraint("Horizontal", 2))
sketch11.addConstraint(Sketcher.Constraint("Vertical", 3))
sketch11.addConstraint(Sketcher.Constraint("DistanceX", 2, 1, 2, 2, Q("1 mm")))
sketch11.addConstraint(Sketcher.Constraint("DistanceY", 1, 2, 1, 1, Q("5 mm")))
sketch11.addConstraint(Sketcher.Constraint("DistanceY", 3, 1, 3, 2, Q("6 mm")))
sketch11.addConstraint(Sketcher.Constraint("DistanceY", -1, 1, 0, 2, Q("31 mm")))
sketch11.addConstraint(Sketcher.Constraint("DistanceX", 0, 2, -1, 1, Q("3.5 mm")))
sketch11.setExpression("Constraints[7]", "Params.sketch11_width")
sketch11.setExpression("Constraints[8]", "Params.sketch11_height")
sketch11.setExpression("Constraints[9]", "Params.sketch11_height2")
groove = body.newObject("PartDesign::Groove", "Groove")
groove.Profile = sketch11
groove.ReferenceAxis = (sketch11, ["H_Axis"])
groove.setExpression("Angle", "Params.groove_angle")

# Sketch on an angled plane
sketch12 = body.newObject("Sketcher::SketchObject", "Sketch011")
sketch12.Placement = App.Placement(Vector(0, 0, 0), App.Rotation(Vector(1, 0, 0), Vector(0, 0.382683432, 0.923879533), Vector(0, -0.923879533, 0.382683432), "ZXY"))
sketch12.addGeometry(Part.LineSegment(Vector(1.5, 32, 0), Vector(1.5, 26, 0)), False)
sketch12.addGeometry(Part.LineSegment(Vector(1.5, 26, 0), Vector(2.5, 26, 0)), False)
sketch12.addGeometry(Part.LineSegment(Vector(2.5, 26, 0), Vector(2.5, 32, 0)), False)
sketch12.addGeometry(Part.LineSegment(Vector(2.5, 32, 0), Vector(1.5, 32, 0)), False)
sketch12.addConstraint(Sketcher.Constraint("Coincident", 0, 2, 1, 1))
sketch12.addConstraint(Sketcher.Constraint("Coincident", 1, 2, 2, 1))
sketch12.addConstraint(Sketcher.Constraint("Coincident", 2, 2, 3, 1))
sketch12.addConstraint(Sketcher.Constraint("Coincident", 3, 2, 0, 1))
sketch12.addConstraint(Sketcher.Constraint("Vertical", 0))
sketch12.addConstraint(Sketcher.Constraint("Horizontal", 1))
sketch12.addConstraint(Sketcher.Constraint("Vertical", 2))
sketch12.addConstraint(Sketcher.Constraint("Horizontal", 3))
sketch12.addConstraint(Sketcher.Constraint("DistanceX", 1, 1, 1, 2, Q("1 mm")))
sketch12.addConstraint(Sketcher.Constraint("DistanceY", 0, 2, 0, 1, Q("6 mm")))
sketch12.addConstraint(Sketcher.Constraint("DistanceY", -1, 1, 0, 2, Q("26 mm")))
sketch12.addConstraint(Sketcher.Constraint("DistanceX", -1, 1, 0, 2, Q("1.5 mm")))
sketch12.setExpression("Constraints[8]", "Params.sketch12_width")
sketch12.setExpression("Constraints[9]", "Params.sketch12_height")
revolution9 = body.newObject("PartDesign::Revolution", "Revolution008")
revolution9.Profile = sketch12
revolution9.ReferenceAxis = (sketch12, ["H_Axis"])
revolution9.setExpression("Angle", "Params.revolution9_angle")
revolution9.Reversed = True

# Sketch on XZ plane
sketch13 = body.newObject("Sketcher::SketchObject", "Sketch012")
sketch13.AttachmentSupport = (doc.getObject("XZ_Plane"), [""])
sketch13.MapMode = "FlatFace"
sketch13.AttachmentOffset = App.Placement(Vector(0, 0, -23.899659), App.Rotation())
sketch13.addGeometry(Part.LineSegment(Vector(-39.3, -16.4, 0), Vector(2.5, -16.4, 0)), False)
sketch13.addGeometry(Part.LineSegment(Vector(2.5, -16.4, 0), Vector(2.5, -17.2, 0)), False)
sketch13.addGeometry(Part.LineSegment(Vector(2.5, -17.2, 0), Vector(-39.3, -17.2, 0)), False)
sketch13.addGeometry(Part.LineSegment(Vector(-39.3, -17.2, 0), Vector(-39.3, -16.4, 0)), False)
sketch13.addGeometry(Part.LineSegment(Vector(2.5, -16.4, 0), Vector(-39.3, -16.4, 0)), True)  # axis
sketch13.addConstraint(Sketcher.Constraint("Coincident", 0, 2, 1, 1))
sketch13.addConstraint(Sketcher.Constraint("Coincident", 1, 2, 2, 1))
sketch13.addConstraint(Sketcher.Constraint("Coincident", 2, 2, 3, 1))
sketch13.addConstraint(Sketcher.Constraint("Coincident", 3, 2, 0, 1))
sketch13.addConstraint(Sketcher.Constraint("Horizontal", 0))
sketch13.addConstraint(Sketcher.Constraint("Vertical", 1))
sketch13.addConstraint(Sketcher.Constraint("Horizontal", 2))
sketch13.addConstraint(Sketcher.Constraint("Vertical", 3))
sketch13.addConstraint(Sketcher.Constraint("Horizontal", 4))
sketch13.addConstraint(Sketcher.Constraint("Coincident", 4, 1, 0, 2))
sketch13.addConstraint(Sketcher.Constraint("Vertical", 2, 2, 4, 2))
sketch13.addConstraint(Sketcher.Constraint("DistanceX", 0, 1, 0, 2, Q("41.8 mm")))
sketch13.addConstraint(Sketcher.Constraint("DistanceY", 1, 2, 1, 1, Q("0.8 mm")))
sketch13.addConstraint(Sketcher.Constraint("DistanceX", -1, 1, 0, 2, Q("2.5 mm")))
sketch13.addConstraint(Sketcher.Constraint("DistanceY", 0, 2, -1, 1, Q("16.425781 mm")))
sketch13.setExpression("Constraints[11]", "Params.sketch13_width")
sketch13.setExpression("Constraints[12]", "Params.sketch13_height")
groove2 = body.newObject("PartDesign::Groove", "Groove001")
groove2.Profile = sketch13
groove2.ReferenceAxis = (sketch13, ["Axis0"])
groove2.setExpression("Angle", "Params.groove2_angle")
doc.recompute()

datumline = body.newObject("PartDesign::Line", "DatumLine")
datumline.Placement = App.Placement(Vector(0, 0, 0), App.Rotation(Vector(0, 0, 1), Vector(0, -0.7193398, -0.69465837)))
linearpattern = body.newObject("PartDesign::LinearPattern", "LinearPattern")
linearpattern.Originals = [groove2]
linearpattern.Direction = (datumline, [""])
linearpattern.Mode = "offset"
linearpattern.setExpression("Offset", "Params.linearpattern_pitch")
linearpattern.Occurrences = 2
body.Tip = linearpattern
doc.recompute()

datumline2 = body.newObject("PartDesign::Line", "DatumLine001")
datumline2.Placement = App.Placement(Vector(0, 0, 0), App.Rotation(Vector(0, 0, 1), Vector(0, 0.390731128, 0.920504854)))
linearpattern2 = body.newObject("PartDesign::LinearPattern", "LinearPattern001")
linearpattern2.Originals = [groove2]
linearpattern2.Direction = (datumline2, [""])
linearpattern2.Mode = "offset"
linearpattern2.setExpression("Offset", "Params.linearpattern2_pitch")
linearpattern2.Occurrences = 2
body.Tip = linearpattern2
doc.recompute()

datumline3 = body.newObject("PartDesign::Line", "DatumLine002")
datumline3.Placement = App.Placement(Vector(0, 0, 0), App.Rotation(Vector(0, 0, 1), Vector(0, 0.199367934, 0.979924705)))
linearpattern3 = body.newObject("PartDesign::LinearPattern", "LinearPattern002")
linearpattern3.Originals = [groove2]
linearpattern3.Direction = (datumline3, [""])
linearpattern3.Mode = "offset"
linearpattern3.setExpression("Offset", "Params.linearpattern3_pitch")
linearpattern3.Occurrences = 2
body.Tip = linearpattern3
doc.recompute()

linearpattern4 = body.newObject("PartDesign::LinearPattern", "LinearPattern003")
linearpattern4.Originals = [groove2]
linearpattern4.Direction = (doc.getObject("Z_Axis"), [""])
linearpattern4.Mode = "offset"
linearpattern4.setExpression("Offset", "Params.linearpattern4_pitch")
linearpattern4.Occurrences = 2
body.Tip = linearpattern4
doc.recompute()

datumline4 = body.newObject("PartDesign::Line", "DatumLine003")
datumline4.Placement = App.Placement(Vector(0, 0, 0), App.Rotation(Vector(0, 0, 1), Vector(0, -0.199367934, 0.979924705)))
linearpattern5 = body.newObject("PartDesign::LinearPattern", "LinearPattern004")
linearpattern5.Originals = [groove2]
linearpattern5.Direction = (datumline4, [""])
linearpattern5.Mode = "offset"
linearpattern5.setExpression("Offset", "Params.linearpattern5_pitch")
linearpattern5.Occurrences = 2
body.Tip = linearpattern5

doc.recompute()
